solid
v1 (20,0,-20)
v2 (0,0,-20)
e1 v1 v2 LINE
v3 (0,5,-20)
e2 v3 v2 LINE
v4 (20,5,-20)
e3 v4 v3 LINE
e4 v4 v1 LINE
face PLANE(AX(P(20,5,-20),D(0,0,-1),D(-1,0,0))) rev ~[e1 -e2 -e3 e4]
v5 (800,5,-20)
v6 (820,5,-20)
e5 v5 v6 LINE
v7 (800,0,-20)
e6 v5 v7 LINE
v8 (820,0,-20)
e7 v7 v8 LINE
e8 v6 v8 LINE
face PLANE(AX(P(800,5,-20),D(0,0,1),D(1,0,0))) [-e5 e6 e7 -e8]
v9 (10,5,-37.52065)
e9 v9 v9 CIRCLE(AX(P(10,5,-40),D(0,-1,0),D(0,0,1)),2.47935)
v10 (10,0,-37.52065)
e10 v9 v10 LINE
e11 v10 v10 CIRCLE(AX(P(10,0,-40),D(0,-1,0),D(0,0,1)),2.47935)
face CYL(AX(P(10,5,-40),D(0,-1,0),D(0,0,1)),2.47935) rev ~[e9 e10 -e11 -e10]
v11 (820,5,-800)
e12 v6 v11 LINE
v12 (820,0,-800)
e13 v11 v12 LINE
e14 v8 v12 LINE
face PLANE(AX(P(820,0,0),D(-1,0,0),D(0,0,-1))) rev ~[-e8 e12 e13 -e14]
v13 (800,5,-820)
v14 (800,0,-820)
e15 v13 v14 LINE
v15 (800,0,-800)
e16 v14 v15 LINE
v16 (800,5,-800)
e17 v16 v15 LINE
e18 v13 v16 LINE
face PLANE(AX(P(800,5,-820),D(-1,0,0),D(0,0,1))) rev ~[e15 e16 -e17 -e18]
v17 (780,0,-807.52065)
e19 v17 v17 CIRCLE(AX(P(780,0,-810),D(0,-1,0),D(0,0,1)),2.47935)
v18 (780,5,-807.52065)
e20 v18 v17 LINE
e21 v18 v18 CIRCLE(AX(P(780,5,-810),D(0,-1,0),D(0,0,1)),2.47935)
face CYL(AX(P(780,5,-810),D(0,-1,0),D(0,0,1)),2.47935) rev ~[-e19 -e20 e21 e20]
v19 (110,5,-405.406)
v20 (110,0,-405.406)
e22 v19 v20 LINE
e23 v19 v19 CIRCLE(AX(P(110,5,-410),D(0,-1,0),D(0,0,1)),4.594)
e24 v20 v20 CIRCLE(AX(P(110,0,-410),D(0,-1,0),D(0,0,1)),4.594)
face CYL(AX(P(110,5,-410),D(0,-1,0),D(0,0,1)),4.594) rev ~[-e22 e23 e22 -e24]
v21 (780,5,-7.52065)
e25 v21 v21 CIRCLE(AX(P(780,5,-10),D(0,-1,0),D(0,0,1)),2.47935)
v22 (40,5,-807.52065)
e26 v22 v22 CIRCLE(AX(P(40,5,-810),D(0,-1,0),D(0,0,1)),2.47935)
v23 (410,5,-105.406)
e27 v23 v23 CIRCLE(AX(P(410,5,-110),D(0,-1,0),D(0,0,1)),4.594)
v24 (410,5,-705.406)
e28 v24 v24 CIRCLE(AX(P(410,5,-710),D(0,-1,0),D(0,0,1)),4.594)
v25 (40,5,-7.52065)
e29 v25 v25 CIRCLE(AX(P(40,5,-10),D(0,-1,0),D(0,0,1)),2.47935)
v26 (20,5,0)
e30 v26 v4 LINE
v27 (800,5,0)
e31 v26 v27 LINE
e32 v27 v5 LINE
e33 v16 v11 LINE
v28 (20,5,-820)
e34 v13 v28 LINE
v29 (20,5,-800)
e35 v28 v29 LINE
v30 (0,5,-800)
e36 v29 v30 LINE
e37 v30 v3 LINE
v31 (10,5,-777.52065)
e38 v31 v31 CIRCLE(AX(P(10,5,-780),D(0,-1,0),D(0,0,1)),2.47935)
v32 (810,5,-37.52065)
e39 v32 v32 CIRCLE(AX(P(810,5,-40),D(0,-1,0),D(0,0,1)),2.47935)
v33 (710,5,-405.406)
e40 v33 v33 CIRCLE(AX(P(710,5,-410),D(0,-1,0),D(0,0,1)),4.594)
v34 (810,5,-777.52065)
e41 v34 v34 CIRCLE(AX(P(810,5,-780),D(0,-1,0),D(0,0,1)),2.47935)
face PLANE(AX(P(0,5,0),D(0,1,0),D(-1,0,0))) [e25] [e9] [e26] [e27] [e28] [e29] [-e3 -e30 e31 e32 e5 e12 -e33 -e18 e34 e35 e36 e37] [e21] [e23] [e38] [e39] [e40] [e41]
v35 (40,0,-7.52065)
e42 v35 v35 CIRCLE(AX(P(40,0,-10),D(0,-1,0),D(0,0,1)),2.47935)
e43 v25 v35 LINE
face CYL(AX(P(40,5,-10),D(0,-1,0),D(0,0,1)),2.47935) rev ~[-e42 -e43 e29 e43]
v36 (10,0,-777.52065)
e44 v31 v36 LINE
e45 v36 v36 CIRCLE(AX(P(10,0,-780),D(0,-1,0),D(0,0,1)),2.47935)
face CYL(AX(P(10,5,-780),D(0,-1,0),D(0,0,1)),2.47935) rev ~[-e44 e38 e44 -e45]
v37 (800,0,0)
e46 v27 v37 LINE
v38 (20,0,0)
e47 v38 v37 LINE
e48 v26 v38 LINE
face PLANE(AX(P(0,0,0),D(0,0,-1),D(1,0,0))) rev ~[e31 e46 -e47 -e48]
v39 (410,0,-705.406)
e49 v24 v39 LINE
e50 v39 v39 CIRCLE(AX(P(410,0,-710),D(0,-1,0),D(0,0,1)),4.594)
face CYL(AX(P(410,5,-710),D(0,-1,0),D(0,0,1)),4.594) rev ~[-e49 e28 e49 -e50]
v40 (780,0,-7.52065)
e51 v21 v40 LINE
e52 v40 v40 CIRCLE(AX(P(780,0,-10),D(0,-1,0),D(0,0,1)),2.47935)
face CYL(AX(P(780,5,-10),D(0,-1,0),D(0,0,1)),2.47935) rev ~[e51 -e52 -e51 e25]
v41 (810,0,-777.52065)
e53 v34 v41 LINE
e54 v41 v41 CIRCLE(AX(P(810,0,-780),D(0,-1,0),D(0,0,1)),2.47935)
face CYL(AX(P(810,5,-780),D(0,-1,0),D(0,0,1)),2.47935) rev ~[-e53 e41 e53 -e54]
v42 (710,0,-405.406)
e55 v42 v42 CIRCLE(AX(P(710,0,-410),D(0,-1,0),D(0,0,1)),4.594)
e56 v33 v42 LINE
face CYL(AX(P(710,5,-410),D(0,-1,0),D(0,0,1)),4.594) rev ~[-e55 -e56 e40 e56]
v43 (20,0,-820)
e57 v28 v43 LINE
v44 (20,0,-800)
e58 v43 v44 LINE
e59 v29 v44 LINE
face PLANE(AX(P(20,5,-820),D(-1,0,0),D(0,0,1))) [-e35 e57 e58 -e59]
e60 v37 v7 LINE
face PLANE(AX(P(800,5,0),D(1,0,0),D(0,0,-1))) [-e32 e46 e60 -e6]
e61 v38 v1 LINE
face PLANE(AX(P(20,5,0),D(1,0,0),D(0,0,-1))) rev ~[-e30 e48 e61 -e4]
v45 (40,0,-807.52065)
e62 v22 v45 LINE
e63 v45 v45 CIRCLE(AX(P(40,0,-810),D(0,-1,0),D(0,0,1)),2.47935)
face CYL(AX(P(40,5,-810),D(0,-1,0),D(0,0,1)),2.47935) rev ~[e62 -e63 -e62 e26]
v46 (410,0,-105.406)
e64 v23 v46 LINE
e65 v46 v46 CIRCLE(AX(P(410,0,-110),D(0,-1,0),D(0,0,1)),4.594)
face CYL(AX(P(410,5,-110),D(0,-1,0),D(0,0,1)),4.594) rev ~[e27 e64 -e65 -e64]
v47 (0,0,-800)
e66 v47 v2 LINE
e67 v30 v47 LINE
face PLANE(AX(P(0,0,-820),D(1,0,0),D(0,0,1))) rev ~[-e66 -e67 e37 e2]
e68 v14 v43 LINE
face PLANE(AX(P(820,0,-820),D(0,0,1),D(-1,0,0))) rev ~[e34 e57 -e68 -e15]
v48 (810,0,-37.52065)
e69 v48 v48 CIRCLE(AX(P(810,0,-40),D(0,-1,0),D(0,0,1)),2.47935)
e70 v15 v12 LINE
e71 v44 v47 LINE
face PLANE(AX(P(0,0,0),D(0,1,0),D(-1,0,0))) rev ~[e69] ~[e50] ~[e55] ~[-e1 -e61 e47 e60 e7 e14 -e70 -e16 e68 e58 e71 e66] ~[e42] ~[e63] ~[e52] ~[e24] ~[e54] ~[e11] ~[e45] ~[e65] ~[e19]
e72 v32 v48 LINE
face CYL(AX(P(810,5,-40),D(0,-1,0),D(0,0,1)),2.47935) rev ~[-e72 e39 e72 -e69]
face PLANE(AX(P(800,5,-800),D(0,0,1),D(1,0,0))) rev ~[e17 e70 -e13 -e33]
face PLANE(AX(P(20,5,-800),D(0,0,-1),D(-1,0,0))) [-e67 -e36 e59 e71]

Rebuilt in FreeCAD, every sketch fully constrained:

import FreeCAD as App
import Part
import Sketcher

V = App.Vector
Q = App.Units.Quantity


def add_polygon(sketch, points):
    """Adds a closed chain of lines whose ends are joined by coincident constraints."""
    first, n = sketch.GeometryCount, len(points)
    for a, b in zip(points, points[1:] + points[:1]):
        sketch.addGeometry(Part.LineSegment(App.Vector(*a, 0), App.Vector(*b, 0)), False)
    for i in range(n):
        sketch.addConstraint(Sketcher.Constraint("Coincident", first + i, 2, first + (i + 1) % n, 1))

doc = App.newDocument("Part")
body = doc.addObject("PartDesign::Body", "Body")

# Sketch on XZ plane
sketch1 = body.newObject("Sketcher::SketchObject", "Sketch")
sketch1.AttachmentSupport = (doc.getObject("XZ_Plane"), [""])
sketch1.MapMode = "FlatFace"
add_polygon(sketch1, [(0, -820), (0, 0), (820, 0), (820, -820)])  # lines 0-3
sketch1.addConstraint([
    Sketcher.Constraint("Vertical", 0),
    Sketcher.Constraint("Horizontal", 1),
    Sketcher.Constraint("Vertical", 2),
    Sketcher.Constraint("Horizontal", 3),
    Sketcher.Constraint("Coincident", 0, 2, -1, 1),
    Sketcher.Constraint("Equal", 3, 0),
    Sketcher.Constraint("DistanceX", 1, 1, 1, 2, Q("820 mm")),
])
pad1 = body.newObject("PartDesign::Pad", "Pad")
pad1.Profile = sketch1
pad1.Length = 5
pad1.Reversed = True

# Sketch on XZ plane
sketch2 = body.newObject("Sketcher::SketchObject", "Sketch001")
sketch2.AttachmentSupport = (doc.getObject("XZ_Plane"), [""])
sketch2.MapMode = "FlatFace"
sketch2.AttachmentOffset = App.Placement(V(0, 0, -5), App.Rotation())
add_polygon(sketch2, [(0, -20), (0, 0), (20, 0), (20, -20)])  # lines 0-3
add_polygon(sketch2, [(800, -20), (800, 0), (820, 0), (820, -20)])  # lines 4-7
add_polygon(sketch2, [(820, -800), (820, -820), (800, -820), (800, -800)])  # lines 8-11
add_polygon(sketch2, [(20, -800), (20, -820), (0, -820), (0, -800)])  # lines 12-15
sketch2.addConstraint([
    Sketcher.Constraint("Vertical", 0),
    Sketcher.Constraint("Horizontal", 1),
    Sketcher.Constraint("Vertical", 2),
    Sketcher.Constraint("Horizontal", 3),
    Sketcher.Constraint("Vertical", 4),
    Sketcher.Constraint("Horizontal", 5),
    Sketcher.Constraint("Vertical", 6),
    Sketcher.Constraint("Horizontal", 7),
    Sketcher.Constraint("Vertical", 8),
    Sketcher.Constraint("Horizontal", 9),
    Sketcher.Constraint("Vertical", 10),
    Sketcher.Constraint("Horizontal", 11),
    Sketcher.Constraint("Vertical", 12),
    Sketcher.Constraint("Horizontal", 13),
    Sketcher.Constraint("Vertical", 14),
    Sketcher.Constraint("Horizontal", 15),
    Sketcher.Constraint("Coincident", 0, 2, -1, 1),
    Sketcher.Constraint("PointOnObject", 4, 2, -1),
    Sketcher.Constraint("PointOnObject", 13, 2, -2),
    Sketcher.Constraint("Horizontal", 3, 2, 6, 2),
    Sketcher.Constraint("Horizontal", 9, 2, 12, 2),
    Sketcher.Constraint("Horizontal", 11, 2, 14, 2),
    Sketcher.Constraint("Vertical", 6, 2, 8, 2),
    Sketcher.Constraint("Vertical", 7, 2, 9, 2),
    Sketcher.Constraint("Vertical", 2, 2, 12, 2),
    Sketcher.Constraint("Equal", 3, 5),
    Sketcher.Constraint("Equal", 15, 0),
    Sketcher.Constraint("Equal", 6, 8),
    Sketcher.Constraint("DistanceX", 1, 1, 1, 2, Q("20 mm")),
    Sketcher.Constraint("DistanceX", -1, 1, 4, 2, Q("800 mm")),
    Sketcher.Constraint("DistanceY", 8, 2, -1, 1, Q("820 mm")),
])
pocket1 = body.newObject("PartDesign::Pocket", "Pocket")
pocket1.Profile = sketch2
pocket1.Length = 5
pocket1.Reversed = True

# Sketch on XZ plane
sketch3 = body.newObject("Sketcher::SketchObject", "Sketch002")
sketch3.AttachmentSupport = (doc.getObject("XZ_Plane"), [""])
sketch3.MapMode = "FlatFace"
sketch3.AttachmentOffset = App.Placement(V(0, 0, -5), App.Rotation())
sketch3.addGeometry([
    Part.Circle(V(40, -10, 0), V(0, 0, 1), 2.47935),  # 0
    Part.Circle(V(780, -10, 0), V(0, 0, 1), 2.47935),  # 1
    Part.Circle(V(810, -780, 0), V(0, 0, 1), 2.47935),  # 2
    Part.Circle(V(780, -810, 0), V(0, 0, 1), 2.47935),  # 3
    Part.Circle(V(40, -810, 0), V(0, 0, 1), 2.47935),  # 4
    Part.Circle(V(10, -780, 0), V(0, 0, 1), 2.47935),  # 5
    Part.Circle(V(10, -40, 0), V(0, 0, 1), 2.47935),  # 6
    Part.Circle(V(810, -40, 0), V(0, 0, 1), 2.47935),  # 7
], False)
sketch3.addConstraint([
    Sketcher.Constraint("Equal", 0, 1),
    Sketcher.Constraint("Equal", 1, 2),
    Sketcher.Constraint("Equal", 2, 3),
    Sketcher.Constraint("Equal", 3, 4),
    Sketcher.Constraint("Equal", 4, 5),
    Sketcher.Constraint("Equal", 5, 6),
    Sketcher.Constraint("Equal", 6, 7),
    Sketcher.Constraint("Horizontal", 0, 3, 1, 3),
    Sketcher.Constraint("Horizontal", 3, 3, 4, 3),
    Sketcher.Constraint("Horizontal", 2, 3, 5, 3),
    Sketcher.Constraint("Horizontal", 6, 3, 7, 3),
    Sketcher.Constraint("Vertical", 1, 3, 3, 3),
    Sketcher.Constraint("Vertical", 0, 3, 4, 3),
    Sketcher.Constraint("Vertical", 5, 3, 6, 3),
    Sketcher.Constraint("Vertical", 2, 3, 7, 3),
    Sketcher.Constraint("DistanceX", -1, 1, 0, 3, Q("40 mm")),
    Sketcher.Constraint("DistanceY", 0, 3, -1, 1, Q("10 mm")),
    Sketcher.Constraint("DistanceX", -1, 1, 1, 3, Q("780 mm")),
    Sketcher.Constraint("DistanceX", -1, 1, 2, 3, Q("810 mm")),
    Sketcher.Constraint("DistanceY", 2, 3, -1, 1, Q("780 mm")),
    Sketcher.Constraint("DistanceY", 3, 3, -1, 1, Q("810 mm")),
    Sketcher.Constraint("DistanceX", -1, 1, 5, 3, Q("10 mm")),
    Sketcher.Constraint("DistanceY", 6, 3, -1, 1, Q("40 mm")),
    Sketcher.Constraint("Diameter", 0, Q("4.9587 mm")),
])
doc.recompute()
hole = body.newObject("PartDesign::Hole", "Hole")
hole.Profile = sketch3
hole.ThreadType = "None"
hole.Diameter = 4.9587
hole.DepthType = "Dimension"
hole.Depth = 13.8
hole.DrillPoint = "Angled"
hole.DrillPointAngle = 118
hole.Reversed = True

# Sketch on XZ plane
sketch4 = body.newObject("Sketcher::SketchObject", "Sketch003")
sketch4.AttachmentSupport = (doc.getObject("XZ_Plane"), [""])
sketch4.MapMode = "FlatFace"
sketch4.AttachmentOffset = App.Placement(V(0, 0, -5), App.Rotation())
sketch4.addGeometry([
    Part.Circle(V(710, -410, 0), V(0, 0, 1), 4.594),
    Part.Circle(V(410, -710, 0), V(0, 0, 1), 4.594),
    Part.Circle(V(110, -410, 0), V(0, 0, 1), 4.594),
    Part.Circle(V(410, -110, 0), V(0, 0, 1), 4.594),
], False)
sketch4.addConstraint([
    Sketcher.Constraint("Equal", 0, 1),
    Sketcher.Constraint("Equal", 1, 2),
    Sketcher.Constraint("Equal", 2, 3),
    Sketcher.Constraint("Horizontal", 0, 3, 2, 3),
    Sketcher.Constraint("Vertical", 1, 3, 3, 3),
    Sketcher.Constraint("Diameter", 0, Q("9.188 mm")),
    Sketcher.Constraint("DistanceX", -1, 1, 0, 3, Q("710 mm")),
    Sketcher.Constraint("DistanceY", 0, 3, -1, 1, Q("410 mm")),
    Sketcher.Constraint("DistanceX", -1, 1, 1, 3, Q("410 mm")),
    Sketcher.Constraint("DistanceY", 1, 3, -1, 1, Q("710 mm")),
    Sketcher.Constraint("DistanceX", -1, 1, 2, 3, Q("110 mm")),
    Sketcher.Constraint("DistanceY", 3, 3, -1, 1, Q("110 mm")),
])
doc.recompute()
hole2 = body.newObject("PartDesign::Hole", "Hole001")
hole2.Profile = sketch4
hole2.ThreadType = "None"
hole2.Diameter = 9.188
hole2.DepthType = "Dimension"
hole2.Depth = 24
hole2.DrillPoint = "Angled"
hole2.DrillPointAngle = 118
hole2.Reversed = True

doc.recompute()
